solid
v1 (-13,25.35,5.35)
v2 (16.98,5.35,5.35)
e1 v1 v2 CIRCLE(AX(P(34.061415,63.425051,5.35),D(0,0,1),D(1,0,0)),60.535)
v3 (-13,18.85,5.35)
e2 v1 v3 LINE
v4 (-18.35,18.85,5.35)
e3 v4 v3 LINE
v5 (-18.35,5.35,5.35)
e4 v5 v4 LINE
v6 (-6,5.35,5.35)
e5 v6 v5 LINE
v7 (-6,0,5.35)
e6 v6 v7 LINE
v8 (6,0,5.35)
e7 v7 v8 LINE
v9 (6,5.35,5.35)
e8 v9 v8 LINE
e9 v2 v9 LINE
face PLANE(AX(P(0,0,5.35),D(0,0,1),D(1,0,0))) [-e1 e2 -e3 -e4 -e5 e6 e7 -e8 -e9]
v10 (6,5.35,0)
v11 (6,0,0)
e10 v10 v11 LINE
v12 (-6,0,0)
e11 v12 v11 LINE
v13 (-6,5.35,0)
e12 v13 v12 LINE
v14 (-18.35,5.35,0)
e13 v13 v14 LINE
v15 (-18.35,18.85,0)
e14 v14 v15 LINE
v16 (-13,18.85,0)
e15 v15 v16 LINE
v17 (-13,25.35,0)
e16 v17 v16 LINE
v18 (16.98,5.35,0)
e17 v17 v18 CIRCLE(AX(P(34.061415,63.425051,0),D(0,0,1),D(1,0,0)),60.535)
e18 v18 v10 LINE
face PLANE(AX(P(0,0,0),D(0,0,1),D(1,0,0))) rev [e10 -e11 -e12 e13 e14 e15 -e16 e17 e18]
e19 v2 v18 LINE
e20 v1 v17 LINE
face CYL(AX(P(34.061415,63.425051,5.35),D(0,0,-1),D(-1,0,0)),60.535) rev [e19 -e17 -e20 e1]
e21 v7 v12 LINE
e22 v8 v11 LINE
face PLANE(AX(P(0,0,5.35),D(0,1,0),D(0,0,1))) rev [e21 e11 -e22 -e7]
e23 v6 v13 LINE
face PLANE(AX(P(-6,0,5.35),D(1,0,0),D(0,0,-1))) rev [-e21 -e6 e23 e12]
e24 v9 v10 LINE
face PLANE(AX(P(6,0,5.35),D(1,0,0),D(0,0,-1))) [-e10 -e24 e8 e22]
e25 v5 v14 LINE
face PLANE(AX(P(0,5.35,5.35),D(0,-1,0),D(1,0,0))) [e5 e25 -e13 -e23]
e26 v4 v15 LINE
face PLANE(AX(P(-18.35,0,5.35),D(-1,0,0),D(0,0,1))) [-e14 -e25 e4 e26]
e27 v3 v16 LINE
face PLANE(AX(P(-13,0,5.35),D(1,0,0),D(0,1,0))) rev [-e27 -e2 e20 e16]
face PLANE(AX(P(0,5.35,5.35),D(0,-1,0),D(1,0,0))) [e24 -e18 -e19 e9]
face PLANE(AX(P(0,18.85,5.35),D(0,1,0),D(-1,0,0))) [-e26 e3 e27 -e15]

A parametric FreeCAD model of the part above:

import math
import FreeCAD as App
import Part
import Sketcher

V = App.Vector
Q = App.Units.Quantity

doc = App.newDocument("Part")
body = doc.addObject("PartDesign::Body", "Body")

sketch1 = body.newObject("Sketcher::SketchObject", "Sketch")
sketch1.AttachmentSupport = (doc.getObject("XY_Plane"), [""])
sketch1.MapMode = "FlatFace"
sketch1.addGeometry(Part.ArcOfCircle(Part.Circle(V(34.061415, 63.425051, 0), V(0, 0, 1), 60.535), math.radians(-141.0254), math.radians(-106.39001)), False)
sketch1.addGeometry(Part.LineSegment(V(-13, 25.35, 0), V(-13, 18.85, 0)), False)
sketch1.addGeometry(Part.LineSegment(V(-13, 18.85, 0), V(-18.35, 18.85, 0)), False)
sketch1.addGeometry(Part.LineSegment(V(-18.35, 18.85, 0), V(-18.35, 5.35, 0)), False)
sketch1.addGeometry(Part.LineSegment(V(-18.35, 5.35, 0), V(-6, 5.35, 0)), False)
sketch1.addGeometry(Part.LineSegment(V(-6, 5.35, 0), V(-6, 0, 0)), False)
sketch1.addGeometry(Part.LineSegment(V(-6, 0, 0), V(6, 0, 0)), False)
sketch1.addGeometry(Part.LineSegment(V(6, 0, 0), V(6, 5.35, 0)), False)
sketch1.addGeometry(Part.LineSegment(V(6, 5.35, 0), V(16.98, 5.35, 0)), False)
sketch1.addConstraint(Sketcher.Constraint("Coincident", 0, 1, 1, 1))
sketch1.addConstraint(Sketcher.Constraint("Coincident", 1, 2, 2, 1))
sketch1.addConstraint(Sketcher.Constraint("Coincident", 2, 2, 3, 1))
sketch1.addConstraint(Sketcher.Constraint("Coincident", 3, 2, 4, 1))
sketch1.addConstraint(Sketcher.Constraint("Coincident", 4, 2, 5, 1))
sketch1.addConstraint(Sketcher.Constraint("Coincident", 5, 2, 6, 1))
sketch1.addConstraint(Sketcher.Constraint("Coincident", 6, 2, 7, 1))
sketch1.addConstraint(Sketcher.Constraint("Coincident", 7, 2, 8, 1))
sketch1.addConstraint(Sketcher.Constraint("Coincident", 8, 2, 0, 2))
sketch1.addConstraint(Sketcher.Constraint("Vertical", 1))
sketch1.addConstraint(Sketcher.Constraint("Horizontal", 2))
sketch1.addConstraint(Sketcher.Constraint("Vertical", 3))
sketch1.addConstraint(Sketcher.Constraint("Horizontal", 4))
sketch1.addConstraint(Sketcher.Constraint("Vertical", 5))
sketch1.addConstraint(Sketcher.Constraint("Horizontal", 6))
sketch1.addConstraint(Sketcher.Constraint("Vertical", 7))
sketch1.addConstraint(Sketcher.Constraint("Horizontal", 8))
sketch1.addConstraint(Sketcher.Constraint("Symmetric", 5, 2, 6, 2, -1, 1))
sketch1.addConstraint(Sketcher.Constraint("Horizontal", 4, 2, 7, 2))
sketch1.addConstraint(Sketcher.Constraint("Equal", 2, 5))
sketch1.addConstraint(Sketcher.Constraint("DistanceX", 6, 1, 6, 2, Q("12 mm")))
sketch1.addConstraint(Sketcher.Constraint("DistanceY", 1, 2, 1, 1, Q("6.5 mm")))
sketch1.addConstraint(Sketcher.Constraint("DistanceY", 3, 2, 3, 1, Q("13.5 mm")))
sketch1.addConstraint(Sketcher.Constraint("DistanceX", 0, 1, -1, 1, Q("13 mm")))
sketch1.addConstraint(Sketcher.Constraint("Radius", 0, Q("60.535 mm")))
sketch1.addConstraint(Sketcher.Constraint("DistanceX", 2, 2, 2, 1, Q("5.35 mm")))
sketch1.addConstraint(Sketcher.Constraint("DistanceX", 8, 1, 8, 2, Q("10.98 mm")))
pad1 = body.newObject("PartDesign::Pad", "Pad")
pad1.Profile = sketch1
pad1.Length = 5.35

doc.recompute()
